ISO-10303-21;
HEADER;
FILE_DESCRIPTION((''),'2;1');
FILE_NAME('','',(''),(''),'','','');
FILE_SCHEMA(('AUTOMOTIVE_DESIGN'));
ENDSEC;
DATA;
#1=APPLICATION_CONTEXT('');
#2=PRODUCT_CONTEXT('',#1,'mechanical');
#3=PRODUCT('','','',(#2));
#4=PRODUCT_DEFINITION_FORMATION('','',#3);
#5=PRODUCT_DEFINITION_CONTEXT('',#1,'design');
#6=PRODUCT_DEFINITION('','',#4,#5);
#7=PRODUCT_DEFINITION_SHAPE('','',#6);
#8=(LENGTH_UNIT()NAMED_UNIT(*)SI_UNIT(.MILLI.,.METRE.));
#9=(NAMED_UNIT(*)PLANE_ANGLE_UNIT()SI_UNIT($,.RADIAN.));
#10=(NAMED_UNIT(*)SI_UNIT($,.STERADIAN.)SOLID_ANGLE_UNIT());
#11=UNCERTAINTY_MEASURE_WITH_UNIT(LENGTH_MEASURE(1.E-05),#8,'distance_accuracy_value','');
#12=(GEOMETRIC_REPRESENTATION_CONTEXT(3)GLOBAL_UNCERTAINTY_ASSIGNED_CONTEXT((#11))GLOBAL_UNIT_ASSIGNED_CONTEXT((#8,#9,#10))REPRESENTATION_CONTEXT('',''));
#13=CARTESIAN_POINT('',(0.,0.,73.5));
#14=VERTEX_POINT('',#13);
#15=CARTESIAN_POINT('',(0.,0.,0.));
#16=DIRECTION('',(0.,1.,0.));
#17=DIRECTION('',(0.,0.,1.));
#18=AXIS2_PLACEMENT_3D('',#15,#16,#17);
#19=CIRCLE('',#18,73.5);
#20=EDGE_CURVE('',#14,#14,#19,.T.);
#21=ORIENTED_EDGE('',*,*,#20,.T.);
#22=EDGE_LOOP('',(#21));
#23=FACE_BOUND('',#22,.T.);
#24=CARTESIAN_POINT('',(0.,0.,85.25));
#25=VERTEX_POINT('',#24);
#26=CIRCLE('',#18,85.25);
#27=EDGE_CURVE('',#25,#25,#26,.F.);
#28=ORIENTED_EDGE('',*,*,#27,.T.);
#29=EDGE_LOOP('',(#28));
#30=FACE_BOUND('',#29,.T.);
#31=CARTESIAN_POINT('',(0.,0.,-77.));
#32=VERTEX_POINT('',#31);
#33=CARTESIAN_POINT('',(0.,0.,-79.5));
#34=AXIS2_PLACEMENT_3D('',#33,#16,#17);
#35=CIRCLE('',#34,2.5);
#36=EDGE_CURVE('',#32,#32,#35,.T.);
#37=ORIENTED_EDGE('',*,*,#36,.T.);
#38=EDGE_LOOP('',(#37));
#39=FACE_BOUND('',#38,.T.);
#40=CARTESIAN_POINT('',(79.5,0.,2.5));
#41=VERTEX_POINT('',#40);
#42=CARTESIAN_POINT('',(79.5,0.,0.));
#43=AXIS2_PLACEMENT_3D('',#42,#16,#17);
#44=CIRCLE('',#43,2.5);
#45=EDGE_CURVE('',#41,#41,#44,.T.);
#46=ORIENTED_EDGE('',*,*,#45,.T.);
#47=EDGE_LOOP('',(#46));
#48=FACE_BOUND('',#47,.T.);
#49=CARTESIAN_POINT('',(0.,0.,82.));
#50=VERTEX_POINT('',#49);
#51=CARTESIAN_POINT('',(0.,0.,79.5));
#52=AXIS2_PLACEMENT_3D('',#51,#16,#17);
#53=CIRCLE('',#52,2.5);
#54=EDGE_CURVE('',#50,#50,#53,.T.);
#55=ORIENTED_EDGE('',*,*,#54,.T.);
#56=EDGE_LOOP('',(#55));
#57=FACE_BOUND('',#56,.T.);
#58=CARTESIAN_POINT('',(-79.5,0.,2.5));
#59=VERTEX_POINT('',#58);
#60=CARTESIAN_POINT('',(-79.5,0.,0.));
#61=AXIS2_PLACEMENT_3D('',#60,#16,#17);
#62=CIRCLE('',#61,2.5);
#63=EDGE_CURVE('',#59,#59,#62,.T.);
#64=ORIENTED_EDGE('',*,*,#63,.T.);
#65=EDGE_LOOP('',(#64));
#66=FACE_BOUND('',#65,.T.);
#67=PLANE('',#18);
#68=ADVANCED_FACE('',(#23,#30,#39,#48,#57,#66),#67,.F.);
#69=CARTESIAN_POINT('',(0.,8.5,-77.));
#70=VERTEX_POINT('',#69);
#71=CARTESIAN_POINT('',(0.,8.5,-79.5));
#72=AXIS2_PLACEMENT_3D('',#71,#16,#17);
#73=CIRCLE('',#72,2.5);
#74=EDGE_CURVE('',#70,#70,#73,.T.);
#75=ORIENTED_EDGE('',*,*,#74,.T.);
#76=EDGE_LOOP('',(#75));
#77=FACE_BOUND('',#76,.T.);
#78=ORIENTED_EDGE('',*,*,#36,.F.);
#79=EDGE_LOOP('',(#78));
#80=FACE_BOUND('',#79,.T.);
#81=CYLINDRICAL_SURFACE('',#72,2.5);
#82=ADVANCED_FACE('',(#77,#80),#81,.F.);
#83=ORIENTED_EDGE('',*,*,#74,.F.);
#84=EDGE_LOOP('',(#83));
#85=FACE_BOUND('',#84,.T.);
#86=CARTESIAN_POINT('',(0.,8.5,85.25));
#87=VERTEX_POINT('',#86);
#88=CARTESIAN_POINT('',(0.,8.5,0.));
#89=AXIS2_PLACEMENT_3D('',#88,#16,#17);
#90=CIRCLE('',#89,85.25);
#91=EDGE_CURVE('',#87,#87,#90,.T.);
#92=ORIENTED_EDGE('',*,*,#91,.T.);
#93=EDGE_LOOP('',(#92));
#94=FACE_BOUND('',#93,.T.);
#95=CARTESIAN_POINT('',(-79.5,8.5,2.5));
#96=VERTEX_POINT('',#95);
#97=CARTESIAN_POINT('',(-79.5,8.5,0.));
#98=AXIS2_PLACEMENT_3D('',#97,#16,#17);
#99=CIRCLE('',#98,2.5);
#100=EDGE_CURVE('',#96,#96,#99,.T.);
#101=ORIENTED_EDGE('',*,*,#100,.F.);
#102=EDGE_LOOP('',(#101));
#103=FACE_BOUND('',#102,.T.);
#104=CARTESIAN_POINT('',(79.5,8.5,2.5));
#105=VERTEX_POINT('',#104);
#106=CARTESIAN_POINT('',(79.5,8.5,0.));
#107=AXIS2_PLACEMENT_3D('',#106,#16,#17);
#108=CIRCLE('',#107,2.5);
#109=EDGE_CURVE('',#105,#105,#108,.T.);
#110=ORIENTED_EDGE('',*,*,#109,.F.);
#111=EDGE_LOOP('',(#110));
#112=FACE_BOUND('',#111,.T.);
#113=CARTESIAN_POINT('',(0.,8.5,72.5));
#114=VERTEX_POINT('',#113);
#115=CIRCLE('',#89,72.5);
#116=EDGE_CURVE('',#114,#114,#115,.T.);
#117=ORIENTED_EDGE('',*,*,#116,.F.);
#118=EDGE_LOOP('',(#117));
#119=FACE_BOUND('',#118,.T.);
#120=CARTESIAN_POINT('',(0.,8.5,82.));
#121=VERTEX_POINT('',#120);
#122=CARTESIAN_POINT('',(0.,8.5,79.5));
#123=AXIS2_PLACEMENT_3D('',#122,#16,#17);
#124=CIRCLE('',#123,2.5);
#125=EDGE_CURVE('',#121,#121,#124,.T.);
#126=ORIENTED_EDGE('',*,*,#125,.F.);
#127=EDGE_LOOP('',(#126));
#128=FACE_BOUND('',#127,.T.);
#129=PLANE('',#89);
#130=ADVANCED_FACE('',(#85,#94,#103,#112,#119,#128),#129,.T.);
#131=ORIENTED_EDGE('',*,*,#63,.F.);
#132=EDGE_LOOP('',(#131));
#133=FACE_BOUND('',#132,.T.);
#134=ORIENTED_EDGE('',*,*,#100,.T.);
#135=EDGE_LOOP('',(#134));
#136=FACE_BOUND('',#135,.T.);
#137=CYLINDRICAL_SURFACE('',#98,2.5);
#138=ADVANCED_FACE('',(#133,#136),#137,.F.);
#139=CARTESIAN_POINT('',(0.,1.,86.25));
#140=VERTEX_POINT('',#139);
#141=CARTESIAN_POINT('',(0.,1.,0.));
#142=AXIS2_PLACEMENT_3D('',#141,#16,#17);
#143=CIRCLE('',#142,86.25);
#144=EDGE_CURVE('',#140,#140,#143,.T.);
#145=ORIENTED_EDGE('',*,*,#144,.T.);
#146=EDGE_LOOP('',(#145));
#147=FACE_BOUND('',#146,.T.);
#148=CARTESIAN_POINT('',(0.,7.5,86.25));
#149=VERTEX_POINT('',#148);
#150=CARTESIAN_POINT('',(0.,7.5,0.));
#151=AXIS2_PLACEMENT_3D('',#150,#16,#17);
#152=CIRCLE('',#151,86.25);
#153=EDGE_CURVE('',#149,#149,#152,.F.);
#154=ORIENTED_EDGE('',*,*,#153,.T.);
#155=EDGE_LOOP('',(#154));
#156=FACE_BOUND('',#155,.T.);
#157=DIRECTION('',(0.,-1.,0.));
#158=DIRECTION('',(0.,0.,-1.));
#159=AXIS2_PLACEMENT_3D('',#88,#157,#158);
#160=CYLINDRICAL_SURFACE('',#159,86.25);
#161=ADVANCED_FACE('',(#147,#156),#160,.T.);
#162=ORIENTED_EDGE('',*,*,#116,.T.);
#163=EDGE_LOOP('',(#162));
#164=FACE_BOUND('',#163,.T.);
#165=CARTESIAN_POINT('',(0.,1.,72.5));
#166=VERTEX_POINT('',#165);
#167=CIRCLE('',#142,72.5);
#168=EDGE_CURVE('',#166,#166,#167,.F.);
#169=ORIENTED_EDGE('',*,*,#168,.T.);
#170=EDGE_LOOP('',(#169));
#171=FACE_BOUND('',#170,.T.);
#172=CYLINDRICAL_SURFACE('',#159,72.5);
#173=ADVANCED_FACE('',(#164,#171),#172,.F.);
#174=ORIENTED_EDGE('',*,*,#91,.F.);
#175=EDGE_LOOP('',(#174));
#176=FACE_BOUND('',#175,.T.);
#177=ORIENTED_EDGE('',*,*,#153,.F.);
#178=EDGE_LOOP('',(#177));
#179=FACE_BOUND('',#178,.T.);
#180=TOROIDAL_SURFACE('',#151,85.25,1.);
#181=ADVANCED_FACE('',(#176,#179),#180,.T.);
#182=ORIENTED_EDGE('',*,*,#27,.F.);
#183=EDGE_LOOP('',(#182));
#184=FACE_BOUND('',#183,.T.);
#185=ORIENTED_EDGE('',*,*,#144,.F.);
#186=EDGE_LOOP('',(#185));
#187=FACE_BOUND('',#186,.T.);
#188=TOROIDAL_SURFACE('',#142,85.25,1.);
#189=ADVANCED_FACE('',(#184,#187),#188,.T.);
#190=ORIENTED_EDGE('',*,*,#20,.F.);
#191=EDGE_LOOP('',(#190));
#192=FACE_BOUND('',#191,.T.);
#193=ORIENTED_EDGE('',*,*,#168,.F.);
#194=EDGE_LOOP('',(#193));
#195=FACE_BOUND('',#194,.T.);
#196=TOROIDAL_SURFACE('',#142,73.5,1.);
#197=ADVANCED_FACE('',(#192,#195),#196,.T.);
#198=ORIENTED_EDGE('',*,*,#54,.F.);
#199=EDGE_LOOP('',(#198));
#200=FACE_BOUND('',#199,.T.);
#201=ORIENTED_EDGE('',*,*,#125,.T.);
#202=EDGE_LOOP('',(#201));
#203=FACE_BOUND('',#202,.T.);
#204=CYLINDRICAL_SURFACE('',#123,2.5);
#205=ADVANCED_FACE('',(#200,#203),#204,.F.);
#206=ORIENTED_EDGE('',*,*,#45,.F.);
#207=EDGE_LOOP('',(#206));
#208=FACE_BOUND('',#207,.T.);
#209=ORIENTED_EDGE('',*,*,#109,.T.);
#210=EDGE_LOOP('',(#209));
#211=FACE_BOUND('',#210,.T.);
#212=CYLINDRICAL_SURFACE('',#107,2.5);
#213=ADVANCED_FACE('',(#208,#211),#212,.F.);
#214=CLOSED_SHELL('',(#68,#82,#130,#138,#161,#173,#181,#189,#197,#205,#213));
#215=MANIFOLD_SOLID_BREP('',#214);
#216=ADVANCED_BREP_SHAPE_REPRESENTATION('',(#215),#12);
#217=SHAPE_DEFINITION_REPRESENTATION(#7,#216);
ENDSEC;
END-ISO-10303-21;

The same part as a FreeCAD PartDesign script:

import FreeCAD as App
import Part
import Sketcher
Q = App.Units.Quantity


def edges_at(feature, points):
    """Names of the edges that pass closest to the given points."""
    edges = feature.Shape.Edges
    near = lambda p: min(range(len(edges)), key=lambda i: edges[i].distToShape(Part.Vertex(*p))[0])
    return sorted({f"Edge{near(p) + 1}" for p in points})

doc = App.newDocument("Part")
params = doc.addObject("Spreadsheet::Sheet", "Params")
for row, (alias, value) in enumerate([
    ("sketch1_diameter", "145 mm"),
    ("sketch1_diameter2", "172.5 mm"),
    ("pad1_length", "8.5 mm"),
    ("fillet_radius", "1 mm"),
    ("sketch2_diameter", "5 mm"),
    ("hole_diameter", "5 mm"),
], start=1):
    params.set(f"A{row}", alias)
    params.set(f"B{row}", "=" + value)
    params.setAlias(f"B{row}", alias)

body = doc.addObject("PartDesign::Body", "Body")

sketch1 = body.newObject("Sketcher::SketchObject", "Sketch")
sketch1.AttachmentSupport = (doc.getObject("XZ_Plane"), [""])
sketch1.MapMode = "FlatFace"
sketch1.addGeometry(Part.Circle(App.Vector(0, 0, 0), App.Vector(0, 0, 1), 86), False)
sketch1.addGeometry(Part.Circle(App.Vector(0, 0, 0), App.Vector(0, 0, 1), 72), False)
sketch1.addConstraint(Sketcher.Constraint("Coincident", 0, 3, -1, 1))
sketch1.addConstraint(Sketcher.Constraint("Coincident", 1, 3, -1, 1))
sketch1.addConstraint(Sketcher.Constraint("Diameter", 1, Q("145 mm")))
sketch1.addConstraint(Sketcher.Constraint("Diameter", 0, Q("172.5 mm")))
sketch1.setExpression("Constraints[2]", "Params.sketch1_diameter")
sketch1.setExpression("Constraints[3]", "Params.sketch1_diameter2")
pad1 = body.newObject("PartDesign::Pad", "Pad")
pad1.Profile = sketch1
pad1.setExpression("Length", "Params.pad1_length")
pad1.Reversed = True
doc.recompute()

fillet = body.newObject("PartDesign::Fillet", "Fillet")
fillet.Base = (pad1, edges_at(pad1, [(0, 0, -86.25), (0, 8.5, -86.25), (0, 0, -72.5)]))
fillet.setExpression("Radius", "Params.fillet_radius")

sketch2 = body.newObject("Sketcher::SketchObject", "Sketch001")
sketch2.AttachmentSupport = (doc.getObject("XZ_Plane"), [""])
sketch2.MapMode = "FlatFace"
sketch2.AttachmentOffset = App.Placement(App.Vector(0, 0, -8.5), App.Rotation())
sketch2.addGeometry(Part.Circle(App.Vector(0, -79.5, 0), App.Vector(0, 0, 1), 2.5), False)
sketch2.addGeometry(Part.Circle(App.Vector(79.5, 0, 0), App.Vector(0, 0, 1), 2.5), False)
sketch2.addGeometry(Part.Circle(App.Vector(0, 79.5, 0), App.Vector(0, 0, 1), 2.5), False)
sketch2.addGeometry(Part.Circle(App.Vector(-79.5, 0, 0), App.Vector(0, 0, 1), 2.5), False)
sketch2.addConstraint(Sketcher.Constraint("Equal", 0, 1))
sketch2.addConstraint(Sketcher.Constraint("Equal", 1, 2))
sketch2.addConstraint(Sketcher.Constraint("Equal", 2, 3))
sketch2.addConstraint(Sketcher.Constraint("Symmetric", 0, 3, 2, 3, -1, 1))
sketch2.addConstraint(Sketcher.Constraint("Symmetric", 1, 3, 3, 3, -1, 1))
sketch2.addConstraint(Sketcher.Constraint("PointOnObject", 0, 3, -2))
sketch2.addConstraint(Sketcher.Constraint("PointOnObject", 1, 3, -1))
sketch2.addConstraint(Sketcher.Constraint("Diameter", 0, Q("5 mm")))
sketch2.addConstraint(Sketcher.Constraint("DistanceY", 0, 3, 2, 3, Q("159 mm")))
sketch2.addConstraint(Sketcher.Constraint("DistanceX", 3, 3, 1, 3, Q("159 mm")))
sketch2.setExpression("Constraints[7]", "Params.sketch2_diameter")
doc.recompute()
hole = body.newObject("PartDesign::Hole", "Hole")
hole.Profile = sketch2
hole.ThreadType = "None"
hole.setExpression("Diameter", "Params.hole_diameter")
hole.DepthType = "ThroughAll"
hole.Reversed = True

doc.recompute()
